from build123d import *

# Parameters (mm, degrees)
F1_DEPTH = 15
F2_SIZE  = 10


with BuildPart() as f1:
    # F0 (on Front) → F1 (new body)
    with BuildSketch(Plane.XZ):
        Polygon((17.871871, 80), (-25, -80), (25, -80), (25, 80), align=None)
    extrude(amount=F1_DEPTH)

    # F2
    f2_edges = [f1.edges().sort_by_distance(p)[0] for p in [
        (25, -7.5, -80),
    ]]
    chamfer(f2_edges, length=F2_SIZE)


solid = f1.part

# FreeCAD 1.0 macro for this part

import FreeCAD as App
import Part
import Sketcher
Q = App.Units.Quantity


def edges_at(feature, points):
    """Names of the edges that pass closest to the given points."""
    edges = feature.Shape.Edges
    near = lambda p: min(range(len(edges)), key=lambda i: edges[i].distToShape(Part.Vertex(*p))[0])
    return sorted({f"Edge{near(p) + 1}" for p in points})


def add_polygon(sketch, points):
    """Adds a closed chain of lines whose ends are joined by coincident constraints."""
    first, n = sketch.GeometryCount, len(points)
    for a, b in zip(points, points[1:] + points[:1]):
        sketch.addGeometry(Part.LineSegment(App.Vector(*a, 0), App.Vector(*b, 0)), False)
    for i in range(n):
        sketch.addConstraint(Sketcher.Constraint("Coincident", first + i, 2, first + (i + 1) % n, 1))

doc = App.newDocument("Part")
body = doc.addObject("PartDesign::Body", "Body")

sketch1 = body.newObject("Sketcher::SketchObject", "Sketch")
sketch1.AttachmentSupport = (doc.getObject("XZ_Plane"), [""])
sketch1.MapMode = "FlatFace"
add_polygon(sketch1, [(18, 80), (-25, -80), (25, -80), (25, 80)])
sketch1.addConstraint(Sketcher.Constraint("Horizontal", 1))
sketch1.addConstraint(Sketcher.Constraint("Vertical", 2))
sketch1.addConstraint(Sketcher.Constraint("Horizontal", 3))
sketch1.addConstraint(Sketcher.Constraint("Symmetric", 0, 2, 2, 2, -1, 1))
sketch1.addConstraint(Sketcher.Constraint("DistanceX", 1, 1, 1, 2, 50.0))
sketch1.addConstraint(Sketcher.Constraint("DistanceY", 2, 1, 2, 2, 160.0))
sketch1.addConstraint(Sketcher.Constraint("Angle", 0, Q("-105 deg")))
pad1 = body.newObject("PartDesign::Pad", "Pad")
pad1.Profile = sketch1
pad1.Length = 15
doc.recompute()

chamfer = body.newObject("PartDesign::Chamfer", "Chamfer")
chamfer.Base = (pad1, edges_at(pad1, [(25, -7.5, -80)]))
chamfer.Size = 10

doc.recompute()
